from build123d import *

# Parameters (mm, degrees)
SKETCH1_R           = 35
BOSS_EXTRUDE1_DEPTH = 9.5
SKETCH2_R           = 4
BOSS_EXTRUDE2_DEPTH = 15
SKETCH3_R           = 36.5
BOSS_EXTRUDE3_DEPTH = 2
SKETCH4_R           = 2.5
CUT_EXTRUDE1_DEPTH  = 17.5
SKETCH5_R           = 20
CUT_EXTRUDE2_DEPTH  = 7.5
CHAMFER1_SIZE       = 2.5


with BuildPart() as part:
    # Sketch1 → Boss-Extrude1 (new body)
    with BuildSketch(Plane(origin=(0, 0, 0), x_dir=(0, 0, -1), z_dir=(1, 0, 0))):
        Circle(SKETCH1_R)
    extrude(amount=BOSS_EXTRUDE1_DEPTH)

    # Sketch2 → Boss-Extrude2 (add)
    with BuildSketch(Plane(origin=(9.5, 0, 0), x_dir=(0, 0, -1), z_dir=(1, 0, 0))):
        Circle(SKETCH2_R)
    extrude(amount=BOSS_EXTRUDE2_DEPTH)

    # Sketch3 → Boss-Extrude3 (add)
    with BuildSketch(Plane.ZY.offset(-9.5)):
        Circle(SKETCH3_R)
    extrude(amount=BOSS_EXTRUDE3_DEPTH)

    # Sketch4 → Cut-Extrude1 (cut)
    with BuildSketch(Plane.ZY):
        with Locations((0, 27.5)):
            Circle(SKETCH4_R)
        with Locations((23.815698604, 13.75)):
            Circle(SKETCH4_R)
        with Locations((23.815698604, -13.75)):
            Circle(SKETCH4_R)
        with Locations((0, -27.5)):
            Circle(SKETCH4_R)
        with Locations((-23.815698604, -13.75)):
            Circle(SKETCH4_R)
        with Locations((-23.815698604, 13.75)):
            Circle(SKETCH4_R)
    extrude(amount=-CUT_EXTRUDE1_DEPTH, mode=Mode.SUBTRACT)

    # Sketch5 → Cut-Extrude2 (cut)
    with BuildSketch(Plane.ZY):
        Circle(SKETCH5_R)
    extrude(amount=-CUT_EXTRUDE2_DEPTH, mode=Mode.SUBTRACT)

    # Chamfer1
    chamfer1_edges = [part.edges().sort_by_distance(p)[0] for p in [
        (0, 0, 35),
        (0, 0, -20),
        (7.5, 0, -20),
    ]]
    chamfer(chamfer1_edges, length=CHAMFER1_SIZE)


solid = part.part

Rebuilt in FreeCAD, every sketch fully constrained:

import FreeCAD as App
import Part
import Sketcher
Q = App.Units.Quantity


def edges_at(feature, points):
    """Names of the edges that pass closest to the given points."""
    edges = feature.Shape.Edges
    near = lambda p: min(range(len(edges)), key=lambda i: edges[i].distToShape(Part.Vertex(*p))[0])
    return sorted({f"Edge{near(p) + 1}" for p in points})

doc = App.newDocument("Part")
params = doc.addObject("Spreadsheet::Sheet", "Params")
for row, (alias, value) in enumerate([
    ("sketch1_diameter", "70 mm"),
    ("pad1_length", "9.5 mm"),
    ("sketch2_diameter", "8 mm"),
    ("pad2_length", "15 mm"),
    ("sketch3_diameter", "73 mm"),
    ("pad3_length", "2 mm"),
    ("sketch4_diameter", "5 mm"),
    ("pocket1_length", "17.5 mm"),
    ("sketch5_diameter", "40 mm"),
    ("pocket2_length", "7.5 mm"),
    ("chamfer_size", "2.5 mm"),
], start=1):
    params.set(f"A{row}", alias)
    params.set(f"B{row}", "=" + value)
    params.setAlias(f"B{row}", alias)

body = doc.addObject("PartDesign::Body", "Body")

sketch1 = body.newObject("Sketcher::SketchObject", "Sketch")
sketch1.AttachmentSupport = (doc.getObject("YZ_Plane"), [""])
sketch1.MapMode = "FlatFace"
sketch1.addGeometry(Part.Circle(App.Vector(0, 0, 0), App.Vector(0, 0, 1), 35), False)
sketch1.addConstraint(Sketcher.Constraint("Coincident", 0, 3, -1, 1))
sketch1.addConstraint(Sketcher.Constraint("Diameter", 0, Q("70 mm")))
sketch1.setExpression("Constraints[1]", "Params.sketch1_diameter")
pad1 = body.newObject("PartDesign::Pad", "Pad")
pad1.Profile = sketch1
pad1.setExpression("Length", "Params.pad1_length")

sketch2 = body.newObject("Sketcher::SketchObject", "Sketch001")
sketch2.AttachmentSupport = (doc.getObject("YZ_Plane"), [""])
sketch2.MapMode = "FlatFace"
sketch2.AttachmentOffset = App.Placement(App.Vector(0, 0, 9.5), App.Rotation())
sketch2.addGeometry(Part.Circle(App.Vector(0, 0, 0), App.Vector(0, 0, 1), 4), False)
sketch2.addConstraint(Sketcher.Constraint("Coincident", 0, 3, -1, 1))
sketch2.addConstraint(Sketcher.Constraint("Diameter", 0, Q("8 mm")))
sketch2.setExpression("Constraints[1]", "Params.sketch2_diameter")
pad2 = body.newObject("PartDesign::Pad", "Pad001")
pad2.Profile = sketch2
pad2.setExpression("Length", "Params.pad2_length")

sketch3 = body.newObject("Sketcher::SketchObject", "Sketch002")
sketch3.AttachmentSupport = (doc.getObject("YZ_Plane"), [""])
sketch3.MapMode = "FlatFace"
sketch3.AttachmentOffset = App.Placement(App.Vector(0, 0, 9.5), App.Rotation())
sketch3.addGeometry(Part.Circle(App.Vector(0, 0, 0), App.Vector(0, 0, 1), 36), False)
sketch3.addConstraint(Sketcher.Constraint("Coincident", 0, 3, -1, 1))
sketch3.addConstraint(Sketcher.Constraint("Diameter", 0, Q("73 mm")))
sketch3.setExpression("Constraints[1]", "Params.sketch3_diameter")
pad3 = body.newObject("PartDesign::Pad", "Pad002")
pad3.Profile = sketch3
pad3.setExpression("Length", "Params.pad3_length")
pad3.Reversed = True

sketch4 = body.newObject("Sketcher::SketchObject", "Sketch003")
sketch4.AttachmentSupport = (doc.getObject("YZ_Plane"), [""])
sketch4.MapMode = "FlatFace"
sketch4.addGeometry(Part.Circle(App.Vector(27.5, 0, 0), App.Vector(0, 0, 1), 2.5), False)
sketch4.addGeometry(Part.Circle(App.Vector(13.8, 23.8, 0), App.Vector(0, 0, 1), 2.5), False)
sketch4.addGeometry(Part.Circle(App.Vector(-13.8, 23.8, 0), App.Vector(0, 0, 1), 2.5), False)
sketch4.addGeometry(Part.Circle(App.Vector(-27.5, 0, 0), App.Vector(0, 0, 1), 2.5), False)
sketch4.addGeometry(Part.Circle(App.Vector(-13.8, -23.8, 0), App.Vector(0, 0, 1), 2.5), False)
sketch4.addGeometry(Part.Circle(App.Vector(13.8, -23.8, 0), App.Vector(0, 0, 1), 2.5), False)
sketch4.addConstraint(Sketcher.Constraint("Equal", 0, 1))
sketch4.addConstraint(Sketcher.Constraint("Equal", 1, 2))
sketch4.addConstraint(Sketcher.Constraint("Equal", 2, 3))
sketch4.addConstraint(Sketcher.Constraint("Equal", 3, 4))
sketch4.addConstraint(Sketcher.Constraint("Equal", 4, 5))
sketch4.addConstraint(Sketcher.Constraint("Symmetric", 0, 3, 3, 3, -1, 1))
sketch4.addConstraint(Sketcher.Constraint("Symmetric", 1, 3, 4, 3, -1, 1))
sketch4.addConstraint(Sketcher.Constraint("Symmetric", 2, 3, 5, 3, -1, 1))
sketch4.addConstraint(Sketcher.Constraint("Symmetric", 1, 3, 2, 3, -2))
sketch4.addConstraint(Sketcher.Constraint("PointOnObject", 0, 3, -1))
sketch4.addConstraint(Sketcher.Constraint("Diameter", 0, Q("5 mm")))
sketch4.addConstraint(Sketcher.Constraint("DistanceX", 3, 3, 0, 3, Q("55 mm")))
sketch4.addConstraint(Sketcher.Constraint("DistanceX", 2, 3, 1, 3, Q("27.5 mm")))
sketch4.addConstraint(Sketcher.Constraint("DistanceY", -1, 1, 1, 3, Q("23.815699 mm")))
sketch4.setExpression("Constraints[10]", "Params.sketch4_diameter")
pocket1 = body.newObject("PartDesign::Pocket", "Pocket")
pocket1.Profile = sketch4
pocket1.setExpression("Length", "Params.pocket1_length")
pocket1.Reversed = True

sketch5 = body.newObject("Sketcher::SketchObject", "Sketch004")
sketch5.AttachmentSupport = (doc.getObject("YZ_Plane"), [""])
sketch5.MapMode = "FlatFace"
sketch5.addGeometry(Part.Circle(App.Vector(0, 0, 0), App.Vector(0, 0, 1), 20), False)
sketch5.addConstraint(Sketcher.Constraint("Coincident", 0, 3, -1, 1))
sketch5.addConstraint(Sketcher.Constraint("Diameter", 0, Q("40 mm")))
sketch5.setExpression("Constraints[1]", "Params.sketch5_diameter")
pocket2 = body.newObject("PartDesign::Pocket", "Pocket001")
pocket2.Profile = sketch5
pocket2.setExpression("Length", "Params.pocket2_length")
pocket2.Reversed = True
doc.recompute()

chamfer = body.newObject("PartDesign::Chamfer", "Chamfer")
chamfer.Base = (pocket2, edges_at(pocket2, [(0, 0, 35), (0, 0, -20), (7.5, 0, -20)]))
chamfer.setExpression("Size", "Params.chamfer_size")

doc.recompute()
